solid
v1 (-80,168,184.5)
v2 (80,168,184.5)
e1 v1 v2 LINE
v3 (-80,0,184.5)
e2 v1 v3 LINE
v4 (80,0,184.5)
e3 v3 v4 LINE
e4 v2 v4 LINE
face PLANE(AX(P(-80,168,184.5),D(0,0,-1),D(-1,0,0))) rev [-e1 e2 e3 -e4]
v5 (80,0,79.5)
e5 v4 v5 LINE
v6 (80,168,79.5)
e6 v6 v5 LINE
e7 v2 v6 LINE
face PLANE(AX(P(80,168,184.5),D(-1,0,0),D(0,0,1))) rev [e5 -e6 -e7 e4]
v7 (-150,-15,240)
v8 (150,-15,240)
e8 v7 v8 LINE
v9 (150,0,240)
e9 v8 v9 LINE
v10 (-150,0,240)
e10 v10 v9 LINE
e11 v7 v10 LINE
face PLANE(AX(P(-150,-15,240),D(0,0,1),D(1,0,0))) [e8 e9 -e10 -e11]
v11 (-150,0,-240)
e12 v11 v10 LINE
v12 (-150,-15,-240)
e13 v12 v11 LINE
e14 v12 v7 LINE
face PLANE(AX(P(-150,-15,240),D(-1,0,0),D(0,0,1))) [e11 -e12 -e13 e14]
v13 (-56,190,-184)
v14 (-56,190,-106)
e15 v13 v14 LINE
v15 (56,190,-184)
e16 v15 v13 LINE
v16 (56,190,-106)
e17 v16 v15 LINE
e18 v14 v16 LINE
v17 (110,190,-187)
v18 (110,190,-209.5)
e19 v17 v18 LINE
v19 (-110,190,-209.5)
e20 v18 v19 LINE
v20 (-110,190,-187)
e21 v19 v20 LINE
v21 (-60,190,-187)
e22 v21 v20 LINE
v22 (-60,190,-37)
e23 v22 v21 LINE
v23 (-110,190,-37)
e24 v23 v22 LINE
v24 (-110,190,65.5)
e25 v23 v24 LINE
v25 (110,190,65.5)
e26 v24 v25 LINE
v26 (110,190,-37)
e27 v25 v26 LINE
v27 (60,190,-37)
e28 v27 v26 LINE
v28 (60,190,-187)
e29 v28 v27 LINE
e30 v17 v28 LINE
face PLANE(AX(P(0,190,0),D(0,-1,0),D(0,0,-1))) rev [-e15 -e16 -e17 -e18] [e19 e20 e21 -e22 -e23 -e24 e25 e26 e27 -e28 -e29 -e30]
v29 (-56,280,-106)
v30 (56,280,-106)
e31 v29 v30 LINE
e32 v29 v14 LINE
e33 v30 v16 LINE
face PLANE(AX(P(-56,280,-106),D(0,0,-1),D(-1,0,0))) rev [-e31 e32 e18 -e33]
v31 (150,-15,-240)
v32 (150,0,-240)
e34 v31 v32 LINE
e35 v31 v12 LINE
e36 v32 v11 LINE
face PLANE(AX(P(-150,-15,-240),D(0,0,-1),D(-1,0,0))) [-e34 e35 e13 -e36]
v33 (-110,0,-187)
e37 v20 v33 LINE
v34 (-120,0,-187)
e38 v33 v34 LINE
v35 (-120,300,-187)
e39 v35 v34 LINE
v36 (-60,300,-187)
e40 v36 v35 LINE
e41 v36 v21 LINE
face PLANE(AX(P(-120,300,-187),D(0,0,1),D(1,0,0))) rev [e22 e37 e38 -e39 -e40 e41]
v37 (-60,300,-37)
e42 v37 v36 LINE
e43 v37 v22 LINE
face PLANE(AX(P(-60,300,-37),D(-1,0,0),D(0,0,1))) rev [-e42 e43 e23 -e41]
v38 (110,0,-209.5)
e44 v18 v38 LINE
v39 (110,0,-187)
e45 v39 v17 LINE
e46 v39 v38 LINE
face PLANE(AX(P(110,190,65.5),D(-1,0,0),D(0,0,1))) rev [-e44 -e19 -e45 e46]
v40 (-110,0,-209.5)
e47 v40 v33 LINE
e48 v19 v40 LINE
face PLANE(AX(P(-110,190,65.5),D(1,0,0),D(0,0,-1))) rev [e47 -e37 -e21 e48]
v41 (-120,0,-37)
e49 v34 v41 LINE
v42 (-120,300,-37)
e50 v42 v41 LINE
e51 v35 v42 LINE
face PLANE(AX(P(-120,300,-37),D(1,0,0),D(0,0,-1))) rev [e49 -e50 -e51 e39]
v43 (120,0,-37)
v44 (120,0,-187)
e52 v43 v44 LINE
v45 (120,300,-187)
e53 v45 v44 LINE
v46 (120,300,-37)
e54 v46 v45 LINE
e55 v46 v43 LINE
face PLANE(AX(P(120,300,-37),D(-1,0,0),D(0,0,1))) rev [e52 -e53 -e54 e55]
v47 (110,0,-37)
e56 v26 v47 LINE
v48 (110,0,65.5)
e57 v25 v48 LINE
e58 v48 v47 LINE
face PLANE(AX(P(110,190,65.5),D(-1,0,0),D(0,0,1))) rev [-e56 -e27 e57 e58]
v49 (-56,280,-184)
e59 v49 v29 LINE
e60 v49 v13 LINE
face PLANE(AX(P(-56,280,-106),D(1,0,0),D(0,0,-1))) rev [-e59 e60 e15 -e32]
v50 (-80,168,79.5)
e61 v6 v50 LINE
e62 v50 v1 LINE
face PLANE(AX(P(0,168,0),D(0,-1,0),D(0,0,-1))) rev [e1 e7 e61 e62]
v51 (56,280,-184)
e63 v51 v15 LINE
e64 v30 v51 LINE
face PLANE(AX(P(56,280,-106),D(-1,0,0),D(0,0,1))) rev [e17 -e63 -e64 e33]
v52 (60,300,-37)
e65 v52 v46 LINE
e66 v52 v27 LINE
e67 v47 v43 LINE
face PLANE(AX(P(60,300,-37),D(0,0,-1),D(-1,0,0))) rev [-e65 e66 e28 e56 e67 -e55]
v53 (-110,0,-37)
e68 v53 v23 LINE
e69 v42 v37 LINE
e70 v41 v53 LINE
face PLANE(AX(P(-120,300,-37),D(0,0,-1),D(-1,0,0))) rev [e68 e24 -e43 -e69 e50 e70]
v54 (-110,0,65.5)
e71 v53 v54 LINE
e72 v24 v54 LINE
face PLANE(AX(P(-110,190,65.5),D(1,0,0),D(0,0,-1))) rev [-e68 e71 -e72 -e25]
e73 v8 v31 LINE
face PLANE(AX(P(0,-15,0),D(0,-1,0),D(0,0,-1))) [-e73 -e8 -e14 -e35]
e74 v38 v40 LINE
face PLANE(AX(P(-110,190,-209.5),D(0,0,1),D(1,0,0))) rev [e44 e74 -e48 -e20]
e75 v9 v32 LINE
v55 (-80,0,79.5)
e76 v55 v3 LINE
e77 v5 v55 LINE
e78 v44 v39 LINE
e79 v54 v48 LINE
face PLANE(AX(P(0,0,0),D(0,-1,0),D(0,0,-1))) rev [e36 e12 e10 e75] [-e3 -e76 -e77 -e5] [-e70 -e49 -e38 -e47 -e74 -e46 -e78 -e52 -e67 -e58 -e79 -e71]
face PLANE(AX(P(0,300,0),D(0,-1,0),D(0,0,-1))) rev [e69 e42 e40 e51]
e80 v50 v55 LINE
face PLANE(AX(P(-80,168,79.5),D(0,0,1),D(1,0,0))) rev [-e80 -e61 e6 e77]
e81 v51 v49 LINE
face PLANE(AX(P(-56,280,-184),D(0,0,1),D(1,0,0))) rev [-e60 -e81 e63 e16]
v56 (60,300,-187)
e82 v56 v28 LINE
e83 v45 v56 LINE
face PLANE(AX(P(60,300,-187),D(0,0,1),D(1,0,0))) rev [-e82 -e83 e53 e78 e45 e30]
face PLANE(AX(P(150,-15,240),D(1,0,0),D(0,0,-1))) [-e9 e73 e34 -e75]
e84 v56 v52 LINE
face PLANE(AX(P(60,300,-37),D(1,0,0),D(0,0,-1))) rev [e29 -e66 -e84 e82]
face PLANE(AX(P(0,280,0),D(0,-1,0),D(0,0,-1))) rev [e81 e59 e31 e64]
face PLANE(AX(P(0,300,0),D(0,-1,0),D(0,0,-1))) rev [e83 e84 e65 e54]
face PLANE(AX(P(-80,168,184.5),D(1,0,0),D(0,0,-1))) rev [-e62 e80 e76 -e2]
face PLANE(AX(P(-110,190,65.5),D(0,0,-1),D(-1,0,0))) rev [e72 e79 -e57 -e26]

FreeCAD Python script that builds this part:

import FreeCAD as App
import Part
import Sketcher

V = App.Vector

doc = App.newDocument("Part")
body = doc.addObject("PartDesign::Body", "Body")

sketch1 = doc.addObject("Sketcher::SketchObject", "Sketch")
body.addObject(sketch1)
sketch1.AttachmentSupport = (doc.XZ_Plane, [""])
sketch1.MapMode = "FlatFace"
sketch1.addGeometry([
    Part.LineSegment(V(-150, -240, 0), V(-150, 240, 0)),
    Part.LineSegment(V(-150, 240, 0), V(150, 240, 0)),
    Part.LineSegment(V(150, 240, 0), V(150, -240, 0)),
    Part.LineSegment(V(150, -240, 0), V(-150, -240, 0)),
], False)
sketch1.addConstraint([
    Sketcher.Constraint("Coincident", 0, 2, 1, 1),
    Sketcher.Constraint("Coincident", 1, 2, 2, 1),
    Sketcher.Constraint("Coincident", 2, 2, 3, 1),
    Sketcher.Constraint("Coincident", 3, 2, 0, 1),
    Sketcher.Constraint("Vertical", 0),
    Sketcher.Constraint("Horizontal", 1),
    Sketcher.Constraint("Vertical", 2),
    Sketcher.Constraint("Horizontal", 3),
    Sketcher.Constraint("Symmetric", 0, 2, 2, 2, -1, 1),
    Sketcher.Constraint("DistanceX", 1, 1, 1, 2, 300.0),
    Sketcher.Constraint("DistanceY", 0, 1, 0, 2, 480.0),
])
pad1 = doc.addObject("PartDesign::Pad", "Pad")
body.addObject(pad1)
pad1.Profile = sketch1
pad1.Length = 15

sketch2 = doc.addObject("Sketcher::SketchObject", "Sketch001")
body.addObject(sketch2)
sketch2.AttachmentSupport = (doc.XZ_Plane, [""])
sketch2.MapMode = "FlatFace"
sketch2.addGeometry([
    Part.LineSegment(V(-110, -209.5, 0), V(-110, 65.5, 0)),
    Part.LineSegment(V(-110, 65.5, 0), V(110, 65.5, 0)),
    Part.LineSegment(V(110, 65.5, 0), V(110, -209.5, 0)),
    Part.LineSegment(V(110, -209.5, 0), V(-110, -209.5, 0)),
], False)
sketch2.addConstraint([
    Sketcher.Constraint("Coincident", 0, 2, 1, 1),
    Sketcher.Constraint("Coincident", 1, 2, 2, 1),
    Sketcher.Constraint("Coincident", 2, 2, 3, 1),
    Sketcher.Constraint("Coincident", 3, 2, 0, 1),
    Sketcher.Constraint("Vertical", 0),
    Sketcher.Constraint("Horizontal", 1),
    Sketcher.Constraint("Vertical", 2),
    Sketcher.Constraint("Horizontal", 3),
    Sketcher.Constraint("DistanceX", 1, 1, 1, 2, 220.0),
    Sketcher.Constraint("DistanceY", 0, 1, 0, 2, 275.0),
    Sketcher.Constraint("DistanceX", 0, 2, -1, 1, 110.0),
    Sketcher.Constraint("DistanceY", -1, 1, 0, 2, 65.5),
])
pad2 = doc.addObject("PartDesign::Pad", "Pad001")
body.addObject(pad2)
pad2.Profile = sketch2
pad2.Length = 190
pad2.Reversed = True

sketch3 = doc.addObject("Sketcher::SketchObject", "Sketch002")
body.addObject(sketch3)
sketch3.AttachmentSupport = (doc.XZ_Plane, [""])
sketch3.MapMode = "FlatFace"
sketch3.addGeometry([
    Part.LineSegment(V(-80, 79.5, 0), V(-80, 184.5, 0)),
    Part.LineSegment(V(-80, 184.5, 0), V(80, 184.5, 0)),
    Part.LineSegment(V(80, 184.5, 0), V(80, 79.5, 0)),
    Part.LineSegment(V(80, 79.5, 0), V(-80, 79.5, 0)),
], False)
sketch3.addConstraint([
    Sketcher.Constraint("Coincident", 0, 2, 1, 1),
    Sketcher.Constraint("Coincident", 1, 2, 2, 1),
    Sketcher.Constraint("Coincident", 2, 2, 3, 1),
    Sketcher.Constraint("Coincident", 3, 2, 0, 1),
    Sketcher.Constraint("Vertical", 0),
    Sketcher.Constraint("Horizontal", 1),
    Sketcher.Constraint("Vertical", 2),
    Sketcher.Constraint("Horizontal", 3),
    Sketcher.Constraint("DistanceX", 1, 1, 1, 2, 160.0),
    Sketcher.Constraint("DistanceY", 0, 1, 0, 2, 105.0),
    Sketcher.Constraint("DistanceX", 0, 2, -1, 1, 80.0),
    Sketcher.Constraint("DistanceY", -1, 1, 0, 2, 184.5),
])
pad3 = doc.addObject("PartDesign::Pad", "Pad002")
body.addObject(pad3)
pad3.Profile = sketch3
pad3.Length = 168
pad3.Reversed = True

sketch4 = doc.addObject("Sketcher::SketchObject", "Sketch003")
body.addObject(sketch4)
sketch4.AttachmentSupport = (doc.XZ_Plane, [""])
sketch4.MapMode = "FlatFace"
sketch4.addGeometry([
    Part.LineSegment(V(-120, -187, 0), V(-120, -37, 0)),
    Part.LineSegment(V(-120, -37, 0), V(-60, -37, 0)),
    Part.LineSegment(V(-60, -37, 0), V(-60, -187, 0)),
    Part.LineSegment(V(-60, -187, 0), V(-120, -187, 0)),
], False)
sketch4.addConstraint([
    Sketcher.Constraint("Coincident", 0, 2, 1, 1),
    Sketcher.Constraint("Coincident", 1, 2, 2, 1),
    Sketcher.Constraint("Coincident", 2, 2, 3, 1),
    Sketcher.Constraint("Coincident", 3, 2, 0, 1),
    Sketcher.Constraint("Vertical", 0),
    Sketcher.Constraint("Horizontal", 1),
    Sketcher.Constraint("Vertical", 2),
    Sketcher.Constraint("Horizontal", 3),
    Sketcher.Constraint("DistanceX", 1, 1, 1, 2, 60.0),
    Sketcher.Constraint("DistanceY", 0, 1, 0, 2, 150.0),
    Sketcher.Constraint("DistanceX", 0, 2, -1, 1, 120.0),
    Sketcher.Constraint("DistanceY", 0, 2, -1, 1, 37.0),
])
pad4 = doc.addObject("PartDesign::Pad", "Pad003")
body.addObject(pad4)
pad4.Profile = sketch4
pad4.Length = 300
pad4.Reversed = True

sketch5 = doc.addObject("Sketcher::SketchObject", "Sketch004")
body.addObject(sketch5)
sketch5.AttachmentSupport = (doc.XZ_Plane, [""])
sketch5.MapMode = "FlatFace"
sketch5.addGeometry([
    Part.LineSegment(V(60, -187, 0), V(60, -37, 0)),
    Part.LineSegment(V(60, -37, 0), V(120, -37, 0)),
    Part.LineSegment(V(120, -37, 0), V(120, -187, 0)),
    Part.LineSegment(V(120, -187, 0), V(60, -187, 0)),
], False)
sketch5.addConstraint([
    Sketcher.Constraint("Coincident", 0, 2, 1, 1),
    Sketcher.Constraint("Coincident", 1, 2, 2, 1),
    Sketcher.Constraint("Coincident", 2, 2, 3, 1),
    Sketcher.Constraint("Coincident", 3, 2, 0, 1),
    Sketcher.Constraint("Vertical", 0),
    Sketcher.Constraint("Horizontal", 1),
    Sketcher.Constraint("Vertical", 2),
    Sketcher.Constraint("Horizontal", 3),
    Sketcher.Constraint("DistanceX", 1, 1, 1, 2, 60.0),
    Sketcher.Constraint("DistanceY", 0, 1, 0, 2, 150.0),
    Sketcher.Constraint("DistanceX", -1, 1, 0, 2, 60.0),
    Sketcher.Constraint("DistanceY", 0, 2, -1, 1, 37.0),
])
pad5 = doc.addObject("PartDesign::Pad", "Pad004")
body.addObject(pad5)
pad5.Profile = sketch5
pad5.Length = 300
pad5.Reversed = True

sketch6 = doc.addObject("Sketcher::SketchObject", "Sketch005")
body.addObject(sketch6)
sketch6.AttachmentSupport = (doc.XZ_Plane, [""])
sketch6.MapMode = "FlatFace"
sketch6.addGeometry([
    Part.LineSegment(V(-56, -184, 0), V(-56, -106, 0)),
    Part.LineSegment(V(-56, -106, 0), V(56, -106, 0)),
    Part.LineSegment(V(56, -106, 0), V(56, -184, 0)),
    Part.LineSegment(V(56, -184, 0), V(-56, -184, 0)),
], False)
sketch6.addConstraint([
    Sketcher.Constraint("Coincident", 0, 2, 1, 1),
    Sketcher.Constraint("Coincident", 1, 2, 2, 1),
    Sketcher.Constraint("Coincident", 2, 2, 3, 1),
    Sketcher.Constraint("Coincident", 3, 2, 0, 1),
    Sketcher.Constraint("Vertical", 0),
    Sketcher.Constraint("Horizontal", 1),
    Sketcher.Constraint("Vertical", 2),
    Sketcher.Constraint("Horizontal", 3),
    Sketcher.Constraint("DistanceX", 1, 1, 1, 2, 112.0),
    Sketcher.Constraint("DistanceY", 0, 1, 0, 2, 78.0),
    Sketcher.Constraint("DistanceX", 0, 2, -1, 1, 56.0),
    Sketcher.Constraint("DistanceY", 0, 2, -1, 1, 106.0),
])
pad6 = doc.addObject("PartDesign::Pad", "Pad005")
body.addObject(pad6)
pad6.Profile = sketch6
pad6.Length = 280
pad6.Reversed = True

doc.recompute()
